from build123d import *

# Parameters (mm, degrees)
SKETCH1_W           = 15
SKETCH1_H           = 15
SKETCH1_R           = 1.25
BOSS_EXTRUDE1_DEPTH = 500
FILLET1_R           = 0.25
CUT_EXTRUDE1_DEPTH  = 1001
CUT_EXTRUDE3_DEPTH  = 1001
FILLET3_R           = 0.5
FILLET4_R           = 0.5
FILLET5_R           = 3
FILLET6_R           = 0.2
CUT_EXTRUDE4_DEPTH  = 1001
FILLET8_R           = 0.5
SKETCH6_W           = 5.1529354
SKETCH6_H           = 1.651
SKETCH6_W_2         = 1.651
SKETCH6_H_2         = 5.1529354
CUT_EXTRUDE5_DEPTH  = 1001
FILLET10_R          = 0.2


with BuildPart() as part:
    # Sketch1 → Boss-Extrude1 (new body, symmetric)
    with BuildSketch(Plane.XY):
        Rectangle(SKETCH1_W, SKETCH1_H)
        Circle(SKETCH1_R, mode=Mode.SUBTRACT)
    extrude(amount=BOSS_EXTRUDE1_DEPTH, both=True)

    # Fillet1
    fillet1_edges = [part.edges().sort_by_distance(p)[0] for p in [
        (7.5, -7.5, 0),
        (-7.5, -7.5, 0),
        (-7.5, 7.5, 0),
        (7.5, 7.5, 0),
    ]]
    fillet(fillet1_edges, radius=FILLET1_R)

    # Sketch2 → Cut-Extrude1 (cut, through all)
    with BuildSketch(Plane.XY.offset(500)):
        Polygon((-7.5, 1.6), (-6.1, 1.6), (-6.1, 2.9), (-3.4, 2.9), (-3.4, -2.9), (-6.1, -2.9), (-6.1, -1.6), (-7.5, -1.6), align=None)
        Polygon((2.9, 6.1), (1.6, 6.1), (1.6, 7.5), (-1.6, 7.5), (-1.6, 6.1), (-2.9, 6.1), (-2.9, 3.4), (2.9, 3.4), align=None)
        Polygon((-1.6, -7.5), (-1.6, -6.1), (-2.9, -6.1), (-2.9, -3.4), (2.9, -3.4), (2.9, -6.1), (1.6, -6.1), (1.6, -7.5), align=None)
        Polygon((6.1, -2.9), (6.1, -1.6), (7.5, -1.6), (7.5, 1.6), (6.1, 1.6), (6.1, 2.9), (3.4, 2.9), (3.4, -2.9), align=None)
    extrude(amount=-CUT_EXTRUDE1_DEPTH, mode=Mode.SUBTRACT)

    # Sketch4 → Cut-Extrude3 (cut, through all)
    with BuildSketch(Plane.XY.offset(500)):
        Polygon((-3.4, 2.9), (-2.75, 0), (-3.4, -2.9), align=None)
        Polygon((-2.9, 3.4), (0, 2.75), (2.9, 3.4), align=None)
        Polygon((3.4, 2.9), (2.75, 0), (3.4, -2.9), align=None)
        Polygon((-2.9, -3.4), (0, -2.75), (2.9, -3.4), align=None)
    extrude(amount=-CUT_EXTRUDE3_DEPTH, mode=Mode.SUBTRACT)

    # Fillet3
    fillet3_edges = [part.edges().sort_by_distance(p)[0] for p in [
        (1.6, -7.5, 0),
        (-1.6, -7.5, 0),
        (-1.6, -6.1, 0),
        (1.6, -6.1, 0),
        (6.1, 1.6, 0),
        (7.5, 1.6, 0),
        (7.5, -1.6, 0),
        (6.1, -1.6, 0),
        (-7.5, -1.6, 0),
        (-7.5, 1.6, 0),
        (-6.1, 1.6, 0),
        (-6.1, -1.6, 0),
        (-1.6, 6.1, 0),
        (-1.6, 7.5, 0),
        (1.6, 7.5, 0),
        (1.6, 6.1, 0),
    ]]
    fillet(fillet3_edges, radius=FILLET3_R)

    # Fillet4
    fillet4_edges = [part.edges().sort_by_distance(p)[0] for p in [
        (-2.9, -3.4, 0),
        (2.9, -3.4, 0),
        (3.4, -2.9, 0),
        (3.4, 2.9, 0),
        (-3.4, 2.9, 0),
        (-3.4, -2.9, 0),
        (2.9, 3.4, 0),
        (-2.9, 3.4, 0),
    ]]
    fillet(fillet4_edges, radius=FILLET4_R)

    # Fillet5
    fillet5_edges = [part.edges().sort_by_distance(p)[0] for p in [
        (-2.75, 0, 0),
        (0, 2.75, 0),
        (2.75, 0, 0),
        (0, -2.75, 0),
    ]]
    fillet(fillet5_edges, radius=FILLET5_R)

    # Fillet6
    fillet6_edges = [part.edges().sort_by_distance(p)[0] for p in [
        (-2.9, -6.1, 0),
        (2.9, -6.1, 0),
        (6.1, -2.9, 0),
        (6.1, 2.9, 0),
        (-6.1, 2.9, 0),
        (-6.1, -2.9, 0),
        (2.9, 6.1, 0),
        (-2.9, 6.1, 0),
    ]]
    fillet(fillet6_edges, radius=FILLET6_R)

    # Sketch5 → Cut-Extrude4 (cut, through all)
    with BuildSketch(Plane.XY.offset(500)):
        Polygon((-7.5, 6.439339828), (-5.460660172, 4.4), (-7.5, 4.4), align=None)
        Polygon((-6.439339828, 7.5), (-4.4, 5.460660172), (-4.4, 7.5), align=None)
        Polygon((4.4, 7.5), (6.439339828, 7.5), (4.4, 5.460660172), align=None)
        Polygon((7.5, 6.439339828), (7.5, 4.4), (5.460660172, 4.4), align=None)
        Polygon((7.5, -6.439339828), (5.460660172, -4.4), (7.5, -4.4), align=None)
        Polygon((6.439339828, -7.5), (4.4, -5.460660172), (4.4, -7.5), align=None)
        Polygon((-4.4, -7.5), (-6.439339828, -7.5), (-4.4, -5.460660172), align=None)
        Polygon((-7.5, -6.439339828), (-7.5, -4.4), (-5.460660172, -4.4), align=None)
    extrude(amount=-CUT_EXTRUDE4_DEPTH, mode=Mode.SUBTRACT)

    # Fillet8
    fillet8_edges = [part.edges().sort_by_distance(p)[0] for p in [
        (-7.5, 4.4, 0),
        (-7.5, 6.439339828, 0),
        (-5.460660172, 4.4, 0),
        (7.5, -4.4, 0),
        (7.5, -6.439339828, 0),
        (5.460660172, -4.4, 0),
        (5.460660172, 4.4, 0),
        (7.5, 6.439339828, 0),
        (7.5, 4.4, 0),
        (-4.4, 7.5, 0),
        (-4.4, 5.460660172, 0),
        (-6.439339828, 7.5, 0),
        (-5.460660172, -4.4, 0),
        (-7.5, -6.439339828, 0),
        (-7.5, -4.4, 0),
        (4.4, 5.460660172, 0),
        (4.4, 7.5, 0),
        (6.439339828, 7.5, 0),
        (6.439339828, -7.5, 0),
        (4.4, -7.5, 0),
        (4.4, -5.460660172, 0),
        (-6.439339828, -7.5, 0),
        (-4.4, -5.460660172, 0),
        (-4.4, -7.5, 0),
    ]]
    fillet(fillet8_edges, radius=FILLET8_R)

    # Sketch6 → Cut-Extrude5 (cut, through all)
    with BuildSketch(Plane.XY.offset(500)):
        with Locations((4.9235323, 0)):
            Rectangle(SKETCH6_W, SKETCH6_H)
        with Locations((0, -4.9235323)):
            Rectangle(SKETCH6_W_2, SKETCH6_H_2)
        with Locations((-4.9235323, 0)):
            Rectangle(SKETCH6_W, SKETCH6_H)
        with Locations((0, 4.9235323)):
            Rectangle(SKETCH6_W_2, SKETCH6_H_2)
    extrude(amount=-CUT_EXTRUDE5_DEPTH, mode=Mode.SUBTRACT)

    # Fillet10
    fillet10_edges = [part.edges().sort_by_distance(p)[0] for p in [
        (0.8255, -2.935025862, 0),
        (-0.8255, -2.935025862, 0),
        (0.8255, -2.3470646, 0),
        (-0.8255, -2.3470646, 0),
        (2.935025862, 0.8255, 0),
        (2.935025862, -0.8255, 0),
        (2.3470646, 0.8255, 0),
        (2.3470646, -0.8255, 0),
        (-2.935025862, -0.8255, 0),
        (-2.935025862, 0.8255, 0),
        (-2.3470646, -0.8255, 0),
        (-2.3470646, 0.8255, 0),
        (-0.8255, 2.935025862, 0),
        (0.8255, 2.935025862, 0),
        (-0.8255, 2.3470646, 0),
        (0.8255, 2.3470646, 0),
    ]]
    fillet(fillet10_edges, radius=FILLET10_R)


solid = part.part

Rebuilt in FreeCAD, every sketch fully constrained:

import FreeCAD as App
import Part
import Sketcher
from FreeCAD import Vector
Q = App.Units.Quantity


def edges_at(feature, points):
    """Names of the edges that pass closest to the given points."""
    edges = feature.Shape.Edges
    near = lambda p: min(range(len(edges)), key=lambda i: edges[i].distToShape(Part.Vertex(*p))[0])
    return sorted({f"Edge{near(p) + 1}" for p in points})

doc = App.newDocument("Part")
body = doc.addObject("PartDesign::Body", "Body")

# Sketch on XY plane
sketch1 = doc.addObject("Sketcher::SketchObject", "Sketch")
body.addObject(sketch1)
sketch1.AttachmentSupport = (doc.XY_Plane, [""])
sketch1.MapMode = "FlatFace"
sketch1.addGeometry([
    Part.LineSegment(Vector(-7.5, 7.5, 0), Vector(-7.5, -7.5, 0)),  # 0
    Part.LineSegment(Vector(-7.5, -7.5, 0), Vector(7.5, -7.5, 0)),  # 1
    Part.LineSegment(Vector(7.5, -7.5, 0), Vector(7.5, 7.5, 0)),  # 2
    Part.LineSegment(Vector(7.5, 7.5, 0), Vector(-7.5, 7.5, 0)),  # 3
    Part.Circle(Vector(0, 0, 0), Vector(0, 0, 1), 1.2),  # 4
], False)
sketch1.addConstraint([
    Sketcher.Constraint("Coincident", 0, 2, 1, 1),
    Sketcher.Constraint("Coincident", 1, 2, 2, 1),
    Sketcher.Constraint("Coincident", 2, 2, 3, 1),
    Sketcher.Constraint("Coincident", 3, 2, 0, 1),
    Sketcher.Constraint("Vertical", 0),
    Sketcher.Constraint("Horizontal", 1),
    Sketcher.Constraint("Vertical", 2),
    Sketcher.Constraint("Horizontal", 3),
    Sketcher.Constraint("Coincident", 4, 3, -1, 1),
    Sketcher.Constraint("Symmetric", 0, 2, 2, 2, -1, 1),
    Sketcher.Constraint("Equal", 3, 0),
    Sketcher.Constraint("Diameter", 4, Q("2.5 mm")),
    Sketcher.Constraint("DistanceX", 1, 1, 1, 2, Q("15 mm")),
])
pad1 = doc.addObject("PartDesign::Pad", "Pad")
body.addObject(pad1)
pad1.Profile = sketch1
pad1.Length = 1000
pad1.Midplane = True
doc.recompute()

fillet = doc.addObject("PartDesign::Fillet", "Fillet")
body.addObject(fillet)
fillet.Base = (pad1, edges_at(pad1, [
    (7.5, -7.5, 0),
    (-7.5, -7.5, 0),
    (-7.5, 7.5, 0),
    (7.5, 7.5, 0),
]))
fillet.Radius = 0.25

# Sketch on XY plane
sketch2 = doc.addObject("Sketcher::SketchObject", "Sketch001")
body.addObject(sketch2)
sketch2.AttachmentSupport = (doc.XY_Plane, [""])
sketch2.MapMode = "FlatFace"
sketch2.AttachmentOffset = App.Placement(Vector(0, 0, 500), App.Rotation())
sketch2.addGeometry([
    Part.LineSegment(Vector(-6.1, 1.6, 0), Vector(-7.5, 1.6, 0)),  # 0
    Part.LineSegment(Vector(-7.5, 1.6, 0), Vector(-7.5, -1.6, 0)),  # 1
    Part.LineSegment(Vector(-7.5, -1.6, 0), Vector(-6.1, -1.6, 0)),  # 2
    Part.LineSegment(Vector(-6.1, -1.6, 0), Vector(-6.1, -2.9, 0)),  # 3
    Part.LineSegment(Vector(-6.1, -2.9, 0), Vector(-3.4, -2.9, 0)),  # 4
    Part.LineSegment(Vector(-3.4, -2.9, 0), Vector(-3.4, 2.9, 0)),  # 5
    Part.LineSegment(Vector(-3.4, 2.9, 0), Vector(-6.1, 2.9, 0)),  # 6
    Part.LineSegment(Vector(-6.1, 2.9, 0), Vector(-6.1, 1.6, 0)),  # 7
    Part.LineSegment(Vector(2.9, 6.1, 0), Vector(1.6, 6.1, 0)),  # 8
    Part.LineSegment(Vector(1.6, 6.1, 0), Vector(1.6, 7.5, 0)),  # 9
    Part.LineSegment(Vector(1.6, 7.5, 0), Vector(-1.6, 7.5, 0)),  # 10
    Part.LineSegment(Vector(-1.6, 7.5, 0), Vector(-1.6, 6.1, 0)),  # 11
    Part.LineSegment(Vector(-1.6, 6.1, 0), Vector(-2.9, 6.1, 0)),  # 12
    Part.LineSegment(Vector(-2.9, 6.1, 0), Vector(-2.9, 3.4, 0)),  # 13
    Part.LineSegment(Vector(-2.9, 3.4, 0), Vector(2.9, 3.4, 0)),  # 14
    Part.LineSegment(Vector(2.9, 3.4, 0), Vector(2.9, 6.1, 0)),  # 15
    Part.LineSegment(Vector(-1.6, -6.1, 0), Vector(-1.6, -7.5, 0)),  # 16
    Part.LineSegment(Vector(-1.6, -7.5, 0), Vector(1.6, -7.5, 0)),  # 17
    Part.LineSegment(Vector(1.6, -7.5, 0), Vector(1.6, -6.1, 0)),  # 18
    Part.LineSegment(Vector(1.6, -6.1, 0), Vector(2.9, -6.1, 0)),  # 19
    Part.LineSegment(Vector(2.9, -6.1, 0), Vector(2.9, -3.4, 0)),  # 20
    Part.LineSegment(Vector(2.9, -3.4, 0), Vector(-2.9, -3.4, 0)),  # 21
    Part.LineSegment(Vector(-2.9, -3.4, 0), Vector(-2.9, -6.1, 0)),  # 22
    Part.LineSegment(Vector(-2.9, -6.1, 0), Vector(-1.6, -6.1, 0)),  # 23
    Part.LineSegment(Vector(6.1, -2.9, 0), Vector(6.1, -1.6, 0)),  # 24
    Part.LineSegment(Vector(6.1, -1.6, 0), Vector(7.5, -1.6, 0)),  # 25
    Part.LineSegment(Vector(7.5, -1.6, 0), Vector(7.5, 1.6, 0)),  # 26
    Part.LineSegment(Vector(7.5, 1.6, 0), Vector(6.1, 1.6, 0)),  # 27
    Part.LineSegment(Vector(6.1, 1.6, 0), Vector(6.1, 2.9, 0)),  # 28
    Part.LineSegment(Vector(6.1, 2.9, 0), Vector(3.4, 2.9, 0)),  # 29
    Part.LineSegment(Vector(3.4, 2.9, 0), Vector(3.4, -2.9, 0)),  # 30
    Part.LineSegment(Vector(3.4, -2.9, 0), Vector(6.1, -2.9, 0)),  # 31
], False)
sketch2.addConstraint([
    Sketcher.Constraint("Coincident", 0, 2, 1, 1),
    Sketcher.Constraint("Coincident", 1, 2, 2, 1),
    Sketcher.Constraint("Coincident", 2, 2, 3, 1),
    Sketcher.Constraint("Coincident", 3, 2, 4, 1),
    Sketcher.Constraint("Coincident", 4, 2, 5, 1),
    Sketcher.Constraint("Coincident", 5, 2, 6, 1),
    Sketcher.Constraint("Coincident", 6, 2, 7, 1),
    Sketcher.Constraint("Coincident", 7, 2, 0, 1),
    Sketcher.Constraint("Coincident", 8, 2, 9, 1),
    Sketcher.Constraint("Coincident", 9, 2, 10, 1),
    Sketcher.Constraint("Coincident", 10, 2, 11, 1),
    Sketcher.Constraint("Coincident", 11, 2, 12, 1),
    Sketcher.Constraint("Coincident", 12, 2, 13, 1),
    Sketcher.Constraint("Coincident", 13, 2, 14, 1),
    Sketcher.Constraint("Coincident", 14, 2, 15, 1),
    Sketcher.Constraint("Coincident", 15, 2, 8, 1),
    Sketcher.Constraint("Coincident", 16, 2, 17, 1),
    Sketcher.Constraint("Coincident", 17, 2, 18, 1),
    Sketcher.Constraint("Coincident", 18, 2, 19, 1),
    Sketcher.Constraint("Coincident", 19, 2, 20, 1),
    Sketcher.Constraint("Coincident", 20, 2, 21, 1),
    Sketcher.Constraint("Coincident", 21, 2, 22, 1),
    Sketcher.Constraint("Coincident", 22, 2, 23, 1),
    Sketcher.Constraint("Coincident", 23, 2, 16, 1),
    Sketcher.Constraint("Coincident", 24, 2, 25, 1),
    Sketcher.Constraint("Coincident", 25, 2, 26, 1),
    Sketcher.Constraint("Coincident", 26, 2, 27, 1),
    Sketcher.Constraint("Coincident", 27, 2, 28, 1),
    Sketcher.Constraint("Coincident", 28, 2, 29, 1),
    Sketcher.Constraint("Coincident", 29, 2, 30, 1),
    Sketcher.Constraint("Coincident", 30, 2, 31, 1),
    Sketcher.Constraint("Coincident", 31, 2, 24, 1),
    Sketcher.Constraint("Horizontal", 0),
    Sketcher.Constraint("Vertical", 1),
    Sketcher.Constraint("Horizontal", 2),
    Sketcher.Constraint("Vertical", 3),
    Sketcher.Constraint("Horizontal", 4),
    Sketcher.Constraint("Vertical", 5),
    Sketcher.Constraint("Horizontal", 6),
    Sketcher.Constraint("Vertical", 7),
    Sketcher.Constraint("Horizontal", 8),
    Sketcher.Constraint("Vertical", 9),
    Sketcher.Constraint("Horizontal", 10),
    Sketcher.Constraint("Vertical", 11),
    Sketcher.Constraint("Horizontal", 12),
    Sketcher.Constraint("Vertical", 13),
    Sketcher.Constraint("Horizontal", 14),
    Sketcher.Constraint("Vertical", 15),
    Sketcher.Constraint("Vertical", 16),
    Sketcher.Constraint("Horizontal", 17),
    Sketcher.Constraint("Vertical", 18),
    Sketcher.Constraint("Horizontal", 19),
    Sketcher.Constraint("Vertical", 20),
    Sketcher.Constraint("Horizontal", 21),
    Sketcher.Constraint("Vertical", 22),
    Sketcher.Constraint("Horizontal", 23),
    Sketcher.Constraint("Vertical", 24),
    Sketcher.Constraint("Horizontal", 25),
    Sketcher.Constraint("Vertical", 26),
    Sketcher.Constraint("Horizontal", 27),
    Sketcher.Constraint("Vertical", 28),
    Sketcher.Constraint("Horizontal", 29),
    Sketcher.Constraint("Vertical", 30),
    Sketcher.Constraint("Horizontal", 31),
    Sketcher.Constraint("Symmetric", 9, 2, 16, 2, -1, 1),
    Sketcher.Constraint("Symmetric", 11, 2, 18, 2, -1, 1),
    Sketcher.Constraint("Symmetric", 13, 2, 20, 2, -1, 1),
    Sketcher.Constraint("Symmetric", 15, 2, 22, 2, -1, 1),
    Sketcher.Constraint("Symmetric", 7, 2, 24, 2, -1, 1),
    Sketcher.Constraint("Symmetric", 1, 2, 26, 2, -1, 1),
    Sketcher.Constraint("Symmetric", 3, 2, 28, 2, -1, 1),
    Sketcher.Constraint("Symmetric", 5, 2, 30, 2, -1, 1),
    Sketcher.Constraint("Symmetric", 8, 2, 11, 2, -2),
    Sketcher.Constraint("Symmetric", 2, 2, 24, 2, -2),
    Sketcher.Constraint("Horizontal", 6, 2, 28, 2),
    Sketcher.Constraint("Vertical", 15, 2, 19, 2),
    Sketcher.Constraint("Equal", 17, 1),
    Sketcher.Constraint("Equal", 23, 3),
    Sketcher.Constraint("Equal", 27, 9),
    Sketcher.Constraint("Equal", 31, 13),
    Sketcher.Constraint("DistanceX", 0, 2, 0, 1, Q("1.4 mm")),
    Sketcher.Constraint("DistanceX", 4, 1, 4, 2, Q("2.7 mm")),
    Sketcher.Constraint("DistanceX", 8, 2, 8, 1, Q("1.3 mm")),
    Sketcher.Constraint("DistanceX", 10, 2, 10, 1, Q("3.2 mm")),
    Sketcher.Constraint("DistanceX", 5, 2, 8, 2, Q("5 mm")),
    Sketcher.Constraint("DistanceY", 4, 2, 8, 2, Q("9 mm")),
])
pocket1 = doc.addObject("PartDesign::Pocket", "Pocket")
body.addObject(pocket1)
pocket1.Profile = sketch2
pocket1.Type = "ThroughAll"

# Sketch on XY plane
sketch3 = doc.addObject("Sketcher::SketchObject", "Sketch002")
body.addObject(sketch3)
sketch3.AttachmentSupport = (doc.XY_Plane, [""])
sketch3.MapMode = "FlatFace"
sketch3.AttachmentOffset = App.Placement(Vector(0, 0, 500), App.Rotation())
sketch3.addGeometry([
    Part.LineSegment(Vector(-2.8, 0, 0), Vector(-3.4, 2.9, 0)),  # 0
    Part.LineSegment(Vector(-3.4, 2.9, 0), Vector(-3.4, -2.9, 0)),  # 1
    Part.LineSegment(Vector(-3.4, -2.9, 0), Vector(-2.8, 0, 0)),  # 2
    Part.LineSegment(Vector(-2.9, 3.4, 0), Vector(0, 2.8, 0)),  # 3
    Part.LineSegment(Vector(0, 2.8, 0), Vector(2.9, 3.4, 0)),  # 4
    Part.LineSegment(Vector(2.9, 3.4, 0), Vector(-2.9, 3.4, 0)),  # 5
    Part.LineSegment(Vector(3.4, 2.9, 0), Vector(2.8, 0, 0)),  # 6
    Part.LineSegment(Vector(2.8, 0, 0), Vector(3.4, -2.9, 0)),  # 7
    Part.LineSegment(Vector(3.4, -2.9, 0), Vector(3.4, 2.9, 0)),  # 8
    Part.LineSegment(Vector(0, -2.8, 0), Vector(-2.9, -3.4, 0)),  # 9
    Part.LineSegment(Vector(-2.9, -3.4, 0), Vector(2.9, -3.4, 0)),  # 10
    Part.LineSegment(Vector(2.9, -3.4, 0), Vector(0, -2.8, 0)),  # 11
], False)
sketch3.addConstraint([
    Sketcher.Constraint("Coincident", 0, 2, 1, 1),
    Sketcher.Constraint("Coincident", 1, 2, 2, 1),
    Sketcher.Constraint("Coincident", 2, 2, 0, 1),
    Sketcher.Constraint("Coincident", 3, 2, 4, 1),
    Sketcher.Constraint("Coincident", 4, 2, 5, 1),
    Sketcher.Constraint("Coincident", 5, 2, 3, 1),
    Sketcher.Constraint("Coincident", 6, 2, 7, 1),
    Sketcher.Constraint("Coincident", 7, 2, 8, 1),
    Sketcher.Constraint("Coincident", 8, 2, 6, 1),
    Sketcher.Constraint("Coincident", 9, 2, 10, 1),
    Sketcher.Constraint("Coincident", 10, 2, 11, 1),
    Sketcher.Constraint("Coincident", 11, 2, 9, 1),
    Sketcher.Constraint("Vertical", 1),
    Sketcher.Constraint("Horizontal", 5),
    Sketcher.Constraint("Vertical", 8),
    Sketcher.Constraint("Horizontal", 10),
    Sketcher.Constraint("Symmetric", 2, 2, 6, 2, -1, 1),
    Sketcher.Constraint("Symmetric", 0, 2, 7, 2, -1, 1),
    Sketcher.Constraint("Symmetric", 4, 2, 9, 2, -1, 1),
    Sketcher.Constraint("Symmetric", 3, 2, 11, 2, -1, 1),
    Sketcher.Constraint("PointOnObject", 2, 2, -1),
    Sketcher.Constraint("PointOnObject", 3, 2, -2),
    Sketcher.Constraint("Perpendicular", 2, 3),
    Sketcher.Constraint("Perpendicular", 0, 4),
    Sketcher.Constraint("Perpendicular", 3, 6),
    Sketcher.Constraint("Perpendicular", 6, 11),
    Sketcher.Constraint("Horizontal", 1, 2, 7, 2),
    Sketcher.Constraint("Equal", 10, 1),
    Sketcher.Constraint("DistanceX", 5, 2, 5, 1, Q("5.8 mm")),
    Sketcher.Constraint("DistanceX", 0, 2, -1, 1, Q("3.4 mm")),
    Sketcher.Constraint("DistanceY", -1, 1, 4, 2, Q("3.4 mm")),
    Sketcher.Constraint("DistanceX", 2, 2, 6, 2, Q("5.5 mm")),
])
pocket2 = doc.addObject("PartDesign::Pocket", "Pocket001")
body.addObject(pocket2)
pocket2.Profile = sketch3
pocket2.Type = "ThroughAll"
doc.recompute()

fillet2 = doc.addObject("PartDesign::Fillet", "Fillet001")
body.addObject(fillet2)
fillet2.Base = (pocket2, edges_at(pocket2, [
    (1.6, -7.5, 0),
    (-1.6, -7.5, 0),
    (-1.6, -6.1, 0),
    (1.6, -6.1, 0),
    (6.1, 1.6, 0),
    (7.5, 1.6, 0),
    (7.5, -1.6, 0),
    (6.1, -1.6, 0),
    (-7.5, -1.6, 0),
    (-7.5, 1.6, 0),
    (-6.1, 1.6, 0),
    (-6.1, -1.6, 0),
    (-1.6, 6.1, 0),
    (-1.6, 7.5, 0),
    (1.6, 7.5, 0),
    (1.6, 6.1, 0),
]))
fillet2.Radius = 0.5
doc.recompute()

fillet3 = doc.addObject("PartDesign::Fillet", "Fillet002")
body.addObject(fillet3)
fillet3.Base = (fillet2, edges_at(fillet2, [
    (-2.9, -3.4, 0),
    (2.9, -3.4, 0),
    (3.4, -2.9, 0),
    (3.4, 2.9, 0),
    (-3.4, 2.9, 0),
    (-3.4, -2.9, 0),
    (2.9, 3.4, 0),
    (-2.9, 3.4, 0),
]))
fillet3.Radius = 0.5
doc.recompute()

fillet4 = doc.addObject("PartDesign::Fillet", "Fillet003")
body.addObject(fillet4)
fillet4.Base = (fillet3, edges_at(fillet3, [
    (-2.75, 0, 0),
    (0, 2.75, 0),
    (2.75, 0, 0),
    (0, -2.75, 0),
]))
fillet4.Radius = 3
doc.recompute()

fillet5 = doc.addObject("PartDesign::Fillet", "Fillet004")
body.addObject(fillet5)
fillet5.Base = (fillet4, edges_at(fillet4, [
    (-2.9, -6.1, 0),
    (2.9, -6.1, 0),
    (6.1, -2.9, 0),
    (6.1, 2.9, 0),
    (-6.1, 2.9, 0),
    (-6.1, -2.9, 0),
    (2.9, 6.1, 0),
    (-2.9, 6.1, 0),
]))
fillet5.Radius = 0.2

# Sketch on XY plane
sketch4 = doc.addObject("Sketcher::SketchObject", "Sketch003")
body.addObject(sketch4)
sketch4.AttachmentSupport = (doc.XY_Plane, [""])
sketch4.MapMode = "FlatFace"
sketch4.AttachmentOffset = App.Placement(Vector(0, 0, 500), App.Rotation())
sketch4.addGeometry([
    Part.LineSegment(Vector(-5.5, 4.4, 0), Vector(-7.5, 6.4, 0)),  # 0
    Part.LineSegment(Vector(-7.5, 6.4, 0), Vector(-7.5, 4.4, 0)),  # 1
    Part.LineSegment(Vector(-7.5, 4.4, 0), Vector(-5.5, 4.4, 0)),  # 2
    Part.LineSegment(Vector(-6.4, 7.5, 0), Vector(-4.4, 5.5, 0)),  # 3
    Part.LineSegment(Vector(-4.4, 5.5, 0), Vector(-4.4, 7.5, 0)),  # 4
    Part.LineSegment(Vector(-4.4, 7.5, 0), Vector(-6.4, 7.5, 0)),  # 5
    Part.LineSegment(Vector(6.4, 7.5, 0), Vector(4.4, 7.5, 0)),  # 6
    Part.LineSegment(Vector(4.4, 7.5, 0), Vector(4.4, 5.5, 0)),  # 7
    Part.LineSegment(Vector(4.4, 5.5, 0), Vector(6.4, 7.5, 0)),  # 8
    Part.LineSegment(Vector(7.5, 4.4, 0), Vector(7.5, 6.4, 0)),  # 9
    Part.LineSegment(Vector(7.5, 6.4, 0), Vector(5.5, 4.4, 0)),  # 10
    Part.LineSegment(Vector(5.5, 4.4, 0), Vector(7.5, 4.4, 0)),  # 11
    Part.LineSegment(Vector(5.5, -4.4, 0), Vector(7.5, -6.4, 0)),  # 12
    Part.LineSegment(Vector(7.5, -6.4, 0), Vector(7.5, -4.4, 0)),  # 13
    Part.LineSegment(Vector(7.5, -4.4, 0), Vector(5.5, -4.4, 0)),  # 14
    Part.LineSegment(Vector(6.4, -7.5, 0), Vector(4.4, -5.5, 0)),  # 15
    Part.LineSegment(Vector(4.4, -5.5, 0), Vector(4.4, -7.5, 0)),  # 16
    Part.LineSegment(Vector(4.4, -7.5, 0), Vector(6.4, -7.5, 0)),  # 17
    Part.LineSegment(Vector(-6.4, -7.5, 0), Vector(-4.4, -7.5, 0)),  # 18
    Part.LineSegment(Vector(-4.4, -7.5, 0), Vector(-4.4, -5.5, 0)),  # 19
    Part.LineSegment(Vector(-4.4, -5.5, 0), Vector(-6.4, -7.5, 0)),  # 20
    Part.LineSegment(Vector(-7.5, -4.4, 0), Vector(-7.5, -6.4, 0)),  # 21
    Part.LineSegment(Vector(-7.5, -6.4, 0), Vector(-5.5, -4.4, 0)),  # 22
    Part.LineSegment(Vector(-5.5, -4.4, 0), Vector(-7.5, -4.4, 0)),  # 23
], False)
sketch4.addConstraint([
    Sketcher.Constraint("Coincident", 0, 2, 1, 1),
    Sketcher.Constraint("Coincident", 1, 2, 2, 1),
    Sketcher.Constraint("Coincident", 2, 2, 0, 1),
    Sketcher.Constraint("Coincident", 3, 2, 4, 1),
    Sketcher.Constraint("Coincident", 4, 2, 5, 1),
    Sketcher.Constraint("Coincident", 5, 2, 3, 1),
    Sketcher.Constraint("Coincident", 6, 2, 7, 1),
    Sketcher.Constraint("Coincident", 7, 2, 8, 1),
    Sketcher.Constraint("Coincident", 8, 2, 6, 1),
    Sketcher.Constraint("Coincident", 9, 2, 10, 1),
    Sketcher.Constraint("Coincident", 10, 2, 11, 1),
    Sketcher.Constraint("Coincident", 11, 2, 9, 1),
    Sketcher.Constraint("Coincident", 12, 2, 13, 1),
    Sketcher.Constraint("Coincident", 13, 2, 14, 1),
    Sketcher.Constraint("Coincident", 14, 2, 12, 1),
    Sketcher.Constraint("Coincident", 15, 2, 16, 1),
    Sketcher.Constraint("Coincident", 16, 2, 17, 1),
    Sketcher.Constraint("Coincident", 17, 2, 15, 1),
    Sketcher.Constraint("Coincident", 18, 2, 19, 1),
    Sketcher.Constraint("Coincident", 19, 2, 20, 1),
    Sketcher.Constraint("Coincident", 20, 2, 18, 1),
    Sketcher.Constraint("Coincident", 21, 2, 22, 1),
    Sketcher.Constraint("Coincident", 22, 2, 23, 1),
    Sketcher.Constraint("Coincident", 23, 2, 21, 1),
    Sketcher.Constraint("Vertical", 1),
    Sketcher.Constraint("Horizontal", 2),
    Sketcher.Constraint("Vertical", 4),
    Sketcher.Constraint("Horizontal", 5),
    Sketcher.Constraint("Horizontal", 6),
    Sketcher.Constraint("Vertical", 7),
    Sketcher.Constraint("Vertical", 9),
    Sketcher.Constraint("Horizontal", 11),
    Sketcher.Constraint("Vertical", 13),
    Sketcher.Constraint("Horizontal", 14),
    Sketcher.Constraint("Vertical", 16),
    Sketcher.Constraint("Horizontal", 17),
    Sketcher.Constraint("Horizontal", 18),
    Sketcher.Constraint("Vertical", 19),
    Sketcher.Constraint("Vertical", 21),
    Sketcher.Constraint("Horizontal", 23),
    Sketcher.Constraint("Symmetric", 0, 2, 12, 2, -1, 1),
    Sketcher.Constraint("Symmetric", 2, 2, 14, 2, -1, 1),
    Sketcher.Constraint("Symmetric", 3, 2, 15, 2, -1, 1),
    Sketcher.Constraint("Symmetric", 5, 2, 17, 2, -1, 1),
    Sketcher.Constraint("Symmetric", 6, 2, 18, 2, -1, 1),
    Sketcher.Constraint("Symmetric", 9, 2, 21, 2, -1, 1),
    Sketcher.Constraint("Symmetric", 10, 2, 22, 2, -1, 1),
    Sketcher.Constraint("Symmetric", 4, 2, 6, 2, -2),
    Sketcher.Constraint("Symmetric", 0, 2, 9, 2, -2),
    Sketcher.Constraint("Symmetric", 2, 2, 10, 2, -2),
    Sketcher.Constraint("Parallel", 0, 3),
    Sketcher.Constraint("Perpendicular", 3, 8),
    Sketcher.Constraint("Parallel", 8, 10),
    Sketcher.Constraint("Perpendicular", 15, 20),
    Sketcher.Constraint("Horizontal", 3, 2, 7, 2),
    Sketcher.Constraint("Horizontal", 15, 2, 19, 2),
    Sketcher.Constraint("Equal", 2, 5),
    Sketcher.Constraint("DistanceX", 0, 2, -1, 1, Q("7.5 mm")),
    Sketcher.Constraint("DistanceY", -1, 1, 1, 2, Q("4.4 mm")),
    Sketcher.Constraint("DistanceX", 3, 2, -1, 1, Q("4.4 mm")),
    Sketcher.Constraint("DistanceY", -1, 1, 4, 2, Q("7.5 mm")),
    Sketcher.Constraint("DistanceX", 2, 1, 2, 2, Q("2.03934 mm")),
])
pocket3 = doc.addObject("PartDesign::Pocket", "Pocket002")
body.addObject(pocket3)
pocket3.Profile = sketch4
pocket3.Type = "ThroughAll"
doc.recompute()

fillet6 = doc.addObject("PartDesign::Fillet", "Fillet005")
body.addObject(fillet6)
fillet6.Base = (pocket3, edges_at(pocket3, [
    (-7.5, 4.4, 0),
    (-7.5, 6.439, 0),
    (-5.461, 4.4, 0),
    (7.5, -4.4, 0),
    (7.5, -6.439, 0),
    (5.461, -4.4, 0),
    (5.461, 4.4, 0),
    (7.5, 6.439, 0),
    (7.5, 4.4, 0),
    (-4.4, 7.5, 0),
    (-4.4, 5.461, 0),
    (-6.439, 7.5, 0),
    (-5.461, -4.4, 0),
    (-7.5, -6.439, 0),
    (-7.5, -4.4, 0),
    (4.4, 5.461, 0),
    (4.4, 7.5, 0),
    (6.439, 7.5, 0),
    (6.439, -7.5, 0),
    (4.4, -7.5, 0),
    (4.4, -5.461, 0),
    (-6.439, -7.5, 0),
    (-4.4, -5.461, 0),
    (-4.4, -7.5, 0),
]))
fillet6.Radius = 0.5

# Sketch on XY plane
sketch5 = doc.addObject("Sketcher::SketchObject", "Sketch004")
body.addObject(sketch5)
sketch5.AttachmentSupport = (doc.XY_Plane, [""])
sketch5.MapMode = "FlatFace"
sketch5.AttachmentOffset = App.Placement(Vector(0, 0, 500), App.Rotation())
sketch5.addGeometry([
    Part.LineSegment(Vector(2.3, 0.8, 0), Vector(2.3, -0.8, 0)),  # 0
    Part.LineSegment(Vector(2.3, -0.8, 0), Vector(7.5, -0.8, 0)),  # 1
    Part.LineSegment(Vector(7.5, -0.8, 0), Vector(7.5, 0.8, 0)),  # 2
    Part.LineSegment(Vector(7.5, 0.8, 0), Vector(2.3, 0.8, 0)),  # 3
    Part.LineSegment(Vector(-0.8, -2.3, 0), Vector(-0.8, -7.5, 0)),  # 4
    Part.LineSegment(Vector(-0.8, -7.5, 0), Vector(0.8, -7.5, 0)),  # 5
    Part.LineSegment(Vector(0.8, -7.5, 0), Vector(0.8, -2.3, 0)),  # 6
    Part.LineSegment(Vector(0.8, -2.3, 0), Vector(-0.8, -2.3, 0)),  # 7
    Part.LineSegment(Vector(-7.5, 0.8, 0), Vector(-7.5, -0.8, 0)),  # 8
    Part.LineSegment(Vector(-7.5, -0.8, 0), Vector(-2.3, -0.8, 0)),  # 9
    Part.LineSegment(Vector(-2.3, -0.8, 0), Vector(-2.3, 0.8, 0)),  # 10
    Part.LineSegment(Vector(-2.3, 0.8, 0), Vector(-7.5, 0.8, 0)),  # 11
    Part.LineSegment(Vector(-0.8, 7.5, 0), Vector(-0.8, 2.3, 0)),  # 12
    Part.LineSegment(Vector(-0.8, 2.3, 0), Vector(0.8, 2.3, 0)),  # 13
    Part.LineSegment(Vector(0.8, 2.3, 0), Vector(0.8, 7.5, 0)),  # 14
    Part.LineSegment(Vector(0.8, 7.5, 0), Vector(-0.8, 7.5, 0)),  # 15
], False)
sketch5.addConstraint([
    Sketcher.Constraint("Coincident", 0, 2, 1, 1),
    Sketcher.Constraint("Coincident", 1, 2, 2, 1),
    Sketcher.Constraint("Coincident", 2, 2, 3, 1),
    Sketcher.Constraint("Coincident", 3, 2, 0, 1),
    Sketcher.Constraint("Coincident", 4, 2, 5, 1),
    Sketcher.Constraint("Coincident", 5, 2, 6, 1),
    Sketcher.Constraint("Coincident", 6, 2, 7, 1),
    Sketcher.Constraint("Coincident", 7, 2, 4, 1),
    Sketcher.Constraint("Coincident", 8, 2, 9, 1),
    Sketcher.Constraint("Coincident", 9, 2, 10, 1),
    Sketcher.Constraint("Coincident", 10, 2, 11, 1),
    Sketcher.Constraint("Coincident", 11, 2, 8, 1),
    Sketcher.Constraint("Coincident", 12, 2, 13, 1),
    Sketcher.Constraint("Coincident", 13, 2, 14, 1),
    Sketcher.Constraint("Coincident", 14, 2, 15, 1),
    Sketcher.Constraint("Coincident", 15, 2, 12, 1),
    Sketcher.Constraint("Vertical", 0),
    Sketcher.Constraint("Horizontal", 1),
    Sketcher.Constraint("Vertical", 2),
    Sketcher.Constraint("Horizontal", 3),
    Sketcher.Constraint("Vertical", 4),
    Sketcher.Constraint("Horizontal", 5),
    Sketcher.Constraint("Vertical", 6),
    Sketcher.Constraint("Horizontal", 7),
    Sketcher.Constraint("Vertical", 8),
    Sketcher.Constraint("Horizontal", 9),
    Sketcher.Constraint("Vertical", 10),
    Sketcher.Constraint("Horizontal", 11),
    Sketcher.Constraint("Vertical", 12),
    Sketcher.Constraint("Horizontal", 13),
    Sketcher.Constraint("Vertical", 14),
    Sketcher.Constraint("Horizontal", 15),
    Sketcher.Constraint("Symmetric", 2, 2, 8, 2, -1, 1),
    Sketcher.Constraint("Symmetric", 0, 2, 10, 2, -1, 1),
    Sketcher.Constraint("Symmetric", 6, 2, 12, 2, -1, 1),
    Sketcher.Constraint("Symmetric", 4, 2, 14, 2, -1, 1),
    Sketcher.Constraint("Horizontal", 1, 2, 8, 2),
    Sketcher.Constraint("Vertical", 7, 2, 12, 2),
    Sketcher.Constraint("Equal", 15, 0),
    Sketcher.Constraint("Equal", 11, 4),
    Sketcher.Constraint("DistanceX", -1, 1, 1, 2, Q("7.5 mm")),
    Sketcher.Constraint("DistanceY", 4, 2, -1, 1, Q("7.5 mm")),
    Sketcher.Constraint("DistanceX", 5, 1, 5, 2, Q("1.651 mm")),
    Sketcher.Constraint("DistanceX", 1, 1, 1, 2, Q("5.152935 mm")),
])
pocket4 = doc.addObject("PartDesign::Pocket", "Pocket003")
body.addObject(pocket4)
pocket4.Profile = sketch5
pocket4.Type = "ThroughAll"
doc.recompute()

fillet7 = doc.addObject("PartDesign::Fillet", "Fillet006")
body.addObject(fillet7)
fillet7.Base = (pocket4, edges_at(pocket4, [
    (0.826, -2.935, 0),
    (-0.826, -2.935, 0),
    (0.826, -2.347, 0),
    (-0.826, -2.347, 0),
    (2.935, 0.826, 0),
    (2.935, -0.826, 0),
    (2.347, 0.826, 0),
    (2.347, -0.826, 0),
    (-2.935, -0.826, 0),
    (-2.935, 0.826, 0),
    (-2.347, -0.826, 0),
    (-2.347, 0.826, 0),
    (-0.826, 2.935, 0),
    (0.826, 2.935, 0),
    (-0.826, 2.347, 0),
    (0.826, 2.347, 0),
]))
fillet7.Radius = 0.2

doc.recompute()
